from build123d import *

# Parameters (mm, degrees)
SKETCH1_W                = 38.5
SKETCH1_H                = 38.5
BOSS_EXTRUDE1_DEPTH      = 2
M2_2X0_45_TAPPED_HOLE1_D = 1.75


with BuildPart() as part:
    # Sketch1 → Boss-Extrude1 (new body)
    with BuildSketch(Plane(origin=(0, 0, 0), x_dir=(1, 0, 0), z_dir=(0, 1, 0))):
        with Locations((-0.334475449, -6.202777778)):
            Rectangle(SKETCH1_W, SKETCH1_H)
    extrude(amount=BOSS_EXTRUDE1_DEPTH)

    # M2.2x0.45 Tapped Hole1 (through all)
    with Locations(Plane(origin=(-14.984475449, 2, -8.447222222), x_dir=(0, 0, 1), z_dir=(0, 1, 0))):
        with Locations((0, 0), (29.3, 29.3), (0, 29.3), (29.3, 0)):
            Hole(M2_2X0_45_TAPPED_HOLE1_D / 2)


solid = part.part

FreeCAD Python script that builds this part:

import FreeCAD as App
import Part
import Sketcher

V = App.Vector

doc = App.newDocument("Part")
body = doc.addObject("PartDesign::Body", "Body")

sketch1 = body.newObject("Sketcher::SketchObject", "Sketch")
sketch1.AttachmentSupport = (doc.getObject("XZ_Plane"), [""])
sketch1.MapMode = "FlatFace"
sketch1.addGeometry(Part.LineSegment(V(-20, -13, 0), V(-20, 25, 0)), False)
sketch1.addGeometry(Part.LineSegment(V(-20, 25, 0), V(19, 25, 0)), False)
sketch1.addGeometry(Part.LineSegment(V(19, 25, 0), V(19, -13, 0)), False)
sketch1.addGeometry(Part.LineSegment(V(19, -13, 0), V(-20, -13, 0)), False)
sketch1.addConstraint(Sketcher.Constraint("Coincident", 0, 2, 1, 1))
sketch1.addConstraint(Sketcher.Constraint("Coincident", 1, 2, 2, 1))
sketch1.addConstraint(Sketcher.Constraint("Coincident", 2, 2, 3, 1))
sketch1.addConstraint(Sketcher.Constraint("Coincident", 3, 2, 0, 1))
sketch1.addConstraint(Sketcher.Constraint("Vertical", 0))
sketch1.addConstraint(Sketcher.Constraint("Horizontal", 1))
sketch1.addConstraint(Sketcher.Constraint("Vertical", 2))
sketch1.addConstraint(Sketcher.Constraint("Horizontal", 3))
sketch1.addConstraint(Sketcher.Constraint("Equal", 3, 0))
sketch1.addConstraint(Sketcher.Constraint("DistanceX", 1, 1, 1, 2, 38.5))
sketch1.addConstraint(Sketcher.Constraint("DistanceX", 0, 2, -1, 1, 19.584475))
sketch1.addConstraint(Sketcher.Constraint("DistanceY", -1, 1, 0, 2, 25.452778))
pad1 = body.newObject("PartDesign::Pad", "Pad")
pad1.Profile = sketch1
pad1.Length = 2
pad1.Reversed = True

sketch2 = body.newObject("Sketcher::SketchObject", "Sketch001")
sketch2.AttachmentSupport = (doc.getObject("XZ_Plane"), [""])
sketch2.MapMode = "FlatFace"
sketch2.AttachmentOffset = App.Placement(V(0, 0, -2), App.Rotation())
sketch2.addGeometry(Part.Circle(V(-15, -8.4, 0), V(0, 0, 1), 0.9), False)
sketch2.addGeometry(Part.Circle(V(14.3, 20.9, 0), V(0, 0, 1), 0.9), False)
sketch2.addGeometry(Part.Circle(V(14.3, -8.4, 0), V(0, 0, 1), 0.9), False)
sketch2.addGeometry(Part.Circle(V(-15, 20.9, 0), V(0, 0, 1), 0.9), False)
sketch2.addConstraint(Sketcher.Constraint("Equal", 0, 1))
sketch2.addConstraint(Sketcher.Constraint("Equal", 1, 2))
sketch2.addConstraint(Sketcher.Constraint("Equal", 2, 3))
sketch2.addConstraint(Sketcher.Constraint("Horizontal", 0, 3, 2, 3))
sketch2.addConstraint(Sketcher.Constraint("Horizontal", 1, 3, 3, 3))
sketch2.addConstraint(Sketcher.Constraint("Vertical", 1, 3, 2, 3))
sketch2.addConstraint(Sketcher.Constraint("Vertical", 0, 3, 3, 3))
sketch2.addConstraint(Sketcher.Constraint("Diameter", 0, 1.75))
sketch2.addConstraint(Sketcher.Constraint("DistanceX", 0, 3, 1, 3, 29.3))
sketch2.addConstraint(Sketcher.Constraint("DistanceY", 0, 3, 1, 3, 29.3))
sketch2.addConstraint(Sketcher.Constraint("DistanceX", 0, 3, -1, 1, 14.984475))
sketch2.addConstraint(Sketcher.Constraint("DistanceY", 0, 3, -1, 1, 8.447222))
doc.recompute()
hole = body.newObject("PartDesign::Hole", "Hole")
hole.Profile = sketch2
hole.ThreadType = "None"
hole.Diameter = 1.75
hole.DepthType = "ThroughAll"
hole.Reversed = True

doc.recompute()
